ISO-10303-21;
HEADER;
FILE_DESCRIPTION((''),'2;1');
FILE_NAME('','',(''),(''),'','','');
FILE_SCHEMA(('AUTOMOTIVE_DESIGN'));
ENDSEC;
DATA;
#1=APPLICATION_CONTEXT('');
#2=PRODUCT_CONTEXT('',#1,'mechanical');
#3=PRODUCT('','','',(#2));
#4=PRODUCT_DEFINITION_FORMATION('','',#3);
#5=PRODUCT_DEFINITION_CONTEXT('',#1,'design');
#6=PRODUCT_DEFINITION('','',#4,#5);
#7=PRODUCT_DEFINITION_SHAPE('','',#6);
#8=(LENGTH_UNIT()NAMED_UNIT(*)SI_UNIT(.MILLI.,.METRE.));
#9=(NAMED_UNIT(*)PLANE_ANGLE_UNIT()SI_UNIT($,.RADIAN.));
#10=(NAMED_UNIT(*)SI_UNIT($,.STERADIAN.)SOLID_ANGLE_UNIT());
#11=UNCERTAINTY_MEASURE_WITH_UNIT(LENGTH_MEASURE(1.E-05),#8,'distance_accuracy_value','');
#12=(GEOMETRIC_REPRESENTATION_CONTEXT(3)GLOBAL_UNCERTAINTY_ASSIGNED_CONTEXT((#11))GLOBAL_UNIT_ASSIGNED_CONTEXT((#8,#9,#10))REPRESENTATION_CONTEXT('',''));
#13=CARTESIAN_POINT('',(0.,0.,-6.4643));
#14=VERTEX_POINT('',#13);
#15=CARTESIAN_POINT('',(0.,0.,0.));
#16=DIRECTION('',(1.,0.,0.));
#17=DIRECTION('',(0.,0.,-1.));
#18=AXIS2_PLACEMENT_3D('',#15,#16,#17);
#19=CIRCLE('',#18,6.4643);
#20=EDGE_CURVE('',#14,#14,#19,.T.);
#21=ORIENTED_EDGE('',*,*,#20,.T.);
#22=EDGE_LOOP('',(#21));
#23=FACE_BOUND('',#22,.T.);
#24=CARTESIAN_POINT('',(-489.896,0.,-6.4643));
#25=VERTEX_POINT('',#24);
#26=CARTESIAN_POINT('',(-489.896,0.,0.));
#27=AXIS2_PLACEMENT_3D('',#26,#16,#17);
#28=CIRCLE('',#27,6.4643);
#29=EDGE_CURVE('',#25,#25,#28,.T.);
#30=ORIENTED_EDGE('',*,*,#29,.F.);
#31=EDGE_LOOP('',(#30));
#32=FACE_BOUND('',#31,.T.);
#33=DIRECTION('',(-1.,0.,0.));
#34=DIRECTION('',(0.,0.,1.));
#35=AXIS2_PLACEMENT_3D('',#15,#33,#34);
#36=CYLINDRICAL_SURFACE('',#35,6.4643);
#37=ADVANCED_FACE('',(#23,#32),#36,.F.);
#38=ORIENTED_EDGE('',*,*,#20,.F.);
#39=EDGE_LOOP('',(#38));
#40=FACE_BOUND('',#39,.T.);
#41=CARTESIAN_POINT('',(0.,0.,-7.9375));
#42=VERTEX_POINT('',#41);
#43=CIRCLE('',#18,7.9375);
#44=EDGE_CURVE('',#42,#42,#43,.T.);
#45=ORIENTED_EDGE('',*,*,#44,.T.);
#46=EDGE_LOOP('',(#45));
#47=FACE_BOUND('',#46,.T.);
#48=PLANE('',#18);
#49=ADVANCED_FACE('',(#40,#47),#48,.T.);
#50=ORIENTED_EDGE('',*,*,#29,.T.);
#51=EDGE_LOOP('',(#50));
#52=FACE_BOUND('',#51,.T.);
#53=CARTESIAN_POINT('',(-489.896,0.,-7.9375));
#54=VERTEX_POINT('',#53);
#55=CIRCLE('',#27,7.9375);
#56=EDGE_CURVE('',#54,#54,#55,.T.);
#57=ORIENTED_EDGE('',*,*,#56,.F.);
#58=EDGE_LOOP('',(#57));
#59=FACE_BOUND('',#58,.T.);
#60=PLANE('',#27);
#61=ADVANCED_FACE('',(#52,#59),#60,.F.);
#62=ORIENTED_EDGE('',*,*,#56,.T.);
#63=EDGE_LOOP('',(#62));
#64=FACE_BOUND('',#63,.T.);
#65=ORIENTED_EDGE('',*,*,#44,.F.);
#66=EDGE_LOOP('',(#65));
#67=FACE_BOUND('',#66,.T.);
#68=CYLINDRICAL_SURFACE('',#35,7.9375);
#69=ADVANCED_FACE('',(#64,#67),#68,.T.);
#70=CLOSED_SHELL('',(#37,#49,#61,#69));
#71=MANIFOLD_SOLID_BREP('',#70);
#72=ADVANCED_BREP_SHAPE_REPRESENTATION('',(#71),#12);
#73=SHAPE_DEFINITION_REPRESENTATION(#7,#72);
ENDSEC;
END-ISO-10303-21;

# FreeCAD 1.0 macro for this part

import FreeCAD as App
import Part
import Sketcher

V = App.Vector
Q = App.Units.Quantity

doc = App.newDocument("Part")
body = doc.addObject("PartDesign::Body", "Body")

sketch1 = doc.addObject("Sketcher::SketchObject", "Sketch")
body.addObject(sketch1)
sketch1.AttachmentSupport = (doc.YZ_Plane, [""])
sketch1.MapMode = "FlatFace"
sketch1.AttachmentOffset = App.Placement(V(0, 0, -489.896), App.Rotation())
sketch1.addGeometry([
    Part.Circle(V(0, 0, 0), V(0, 0, 1), 8),
    Part.Circle(V(0, 0, 0), V(0, 0, 1), 6),
], False)
sketch1.addConstraint([
    Sketcher.Constraint("Coincident", 0, 3, -1, 1),
    Sketcher.Constraint("Coincident", 1, 3, -1, 1),
    Sketcher.Constraint("Diameter", 0, Q("0.625 in")),
    Sketcher.Constraint("Diameter", 1, Q("0.509 in")),
])
pad1 = doc.addObject("PartDesign::Pad", "Pad")
body.addObject(pad1)
pad1.Profile = sketch1
pad1.Length = 489.896

doc.recompute()
